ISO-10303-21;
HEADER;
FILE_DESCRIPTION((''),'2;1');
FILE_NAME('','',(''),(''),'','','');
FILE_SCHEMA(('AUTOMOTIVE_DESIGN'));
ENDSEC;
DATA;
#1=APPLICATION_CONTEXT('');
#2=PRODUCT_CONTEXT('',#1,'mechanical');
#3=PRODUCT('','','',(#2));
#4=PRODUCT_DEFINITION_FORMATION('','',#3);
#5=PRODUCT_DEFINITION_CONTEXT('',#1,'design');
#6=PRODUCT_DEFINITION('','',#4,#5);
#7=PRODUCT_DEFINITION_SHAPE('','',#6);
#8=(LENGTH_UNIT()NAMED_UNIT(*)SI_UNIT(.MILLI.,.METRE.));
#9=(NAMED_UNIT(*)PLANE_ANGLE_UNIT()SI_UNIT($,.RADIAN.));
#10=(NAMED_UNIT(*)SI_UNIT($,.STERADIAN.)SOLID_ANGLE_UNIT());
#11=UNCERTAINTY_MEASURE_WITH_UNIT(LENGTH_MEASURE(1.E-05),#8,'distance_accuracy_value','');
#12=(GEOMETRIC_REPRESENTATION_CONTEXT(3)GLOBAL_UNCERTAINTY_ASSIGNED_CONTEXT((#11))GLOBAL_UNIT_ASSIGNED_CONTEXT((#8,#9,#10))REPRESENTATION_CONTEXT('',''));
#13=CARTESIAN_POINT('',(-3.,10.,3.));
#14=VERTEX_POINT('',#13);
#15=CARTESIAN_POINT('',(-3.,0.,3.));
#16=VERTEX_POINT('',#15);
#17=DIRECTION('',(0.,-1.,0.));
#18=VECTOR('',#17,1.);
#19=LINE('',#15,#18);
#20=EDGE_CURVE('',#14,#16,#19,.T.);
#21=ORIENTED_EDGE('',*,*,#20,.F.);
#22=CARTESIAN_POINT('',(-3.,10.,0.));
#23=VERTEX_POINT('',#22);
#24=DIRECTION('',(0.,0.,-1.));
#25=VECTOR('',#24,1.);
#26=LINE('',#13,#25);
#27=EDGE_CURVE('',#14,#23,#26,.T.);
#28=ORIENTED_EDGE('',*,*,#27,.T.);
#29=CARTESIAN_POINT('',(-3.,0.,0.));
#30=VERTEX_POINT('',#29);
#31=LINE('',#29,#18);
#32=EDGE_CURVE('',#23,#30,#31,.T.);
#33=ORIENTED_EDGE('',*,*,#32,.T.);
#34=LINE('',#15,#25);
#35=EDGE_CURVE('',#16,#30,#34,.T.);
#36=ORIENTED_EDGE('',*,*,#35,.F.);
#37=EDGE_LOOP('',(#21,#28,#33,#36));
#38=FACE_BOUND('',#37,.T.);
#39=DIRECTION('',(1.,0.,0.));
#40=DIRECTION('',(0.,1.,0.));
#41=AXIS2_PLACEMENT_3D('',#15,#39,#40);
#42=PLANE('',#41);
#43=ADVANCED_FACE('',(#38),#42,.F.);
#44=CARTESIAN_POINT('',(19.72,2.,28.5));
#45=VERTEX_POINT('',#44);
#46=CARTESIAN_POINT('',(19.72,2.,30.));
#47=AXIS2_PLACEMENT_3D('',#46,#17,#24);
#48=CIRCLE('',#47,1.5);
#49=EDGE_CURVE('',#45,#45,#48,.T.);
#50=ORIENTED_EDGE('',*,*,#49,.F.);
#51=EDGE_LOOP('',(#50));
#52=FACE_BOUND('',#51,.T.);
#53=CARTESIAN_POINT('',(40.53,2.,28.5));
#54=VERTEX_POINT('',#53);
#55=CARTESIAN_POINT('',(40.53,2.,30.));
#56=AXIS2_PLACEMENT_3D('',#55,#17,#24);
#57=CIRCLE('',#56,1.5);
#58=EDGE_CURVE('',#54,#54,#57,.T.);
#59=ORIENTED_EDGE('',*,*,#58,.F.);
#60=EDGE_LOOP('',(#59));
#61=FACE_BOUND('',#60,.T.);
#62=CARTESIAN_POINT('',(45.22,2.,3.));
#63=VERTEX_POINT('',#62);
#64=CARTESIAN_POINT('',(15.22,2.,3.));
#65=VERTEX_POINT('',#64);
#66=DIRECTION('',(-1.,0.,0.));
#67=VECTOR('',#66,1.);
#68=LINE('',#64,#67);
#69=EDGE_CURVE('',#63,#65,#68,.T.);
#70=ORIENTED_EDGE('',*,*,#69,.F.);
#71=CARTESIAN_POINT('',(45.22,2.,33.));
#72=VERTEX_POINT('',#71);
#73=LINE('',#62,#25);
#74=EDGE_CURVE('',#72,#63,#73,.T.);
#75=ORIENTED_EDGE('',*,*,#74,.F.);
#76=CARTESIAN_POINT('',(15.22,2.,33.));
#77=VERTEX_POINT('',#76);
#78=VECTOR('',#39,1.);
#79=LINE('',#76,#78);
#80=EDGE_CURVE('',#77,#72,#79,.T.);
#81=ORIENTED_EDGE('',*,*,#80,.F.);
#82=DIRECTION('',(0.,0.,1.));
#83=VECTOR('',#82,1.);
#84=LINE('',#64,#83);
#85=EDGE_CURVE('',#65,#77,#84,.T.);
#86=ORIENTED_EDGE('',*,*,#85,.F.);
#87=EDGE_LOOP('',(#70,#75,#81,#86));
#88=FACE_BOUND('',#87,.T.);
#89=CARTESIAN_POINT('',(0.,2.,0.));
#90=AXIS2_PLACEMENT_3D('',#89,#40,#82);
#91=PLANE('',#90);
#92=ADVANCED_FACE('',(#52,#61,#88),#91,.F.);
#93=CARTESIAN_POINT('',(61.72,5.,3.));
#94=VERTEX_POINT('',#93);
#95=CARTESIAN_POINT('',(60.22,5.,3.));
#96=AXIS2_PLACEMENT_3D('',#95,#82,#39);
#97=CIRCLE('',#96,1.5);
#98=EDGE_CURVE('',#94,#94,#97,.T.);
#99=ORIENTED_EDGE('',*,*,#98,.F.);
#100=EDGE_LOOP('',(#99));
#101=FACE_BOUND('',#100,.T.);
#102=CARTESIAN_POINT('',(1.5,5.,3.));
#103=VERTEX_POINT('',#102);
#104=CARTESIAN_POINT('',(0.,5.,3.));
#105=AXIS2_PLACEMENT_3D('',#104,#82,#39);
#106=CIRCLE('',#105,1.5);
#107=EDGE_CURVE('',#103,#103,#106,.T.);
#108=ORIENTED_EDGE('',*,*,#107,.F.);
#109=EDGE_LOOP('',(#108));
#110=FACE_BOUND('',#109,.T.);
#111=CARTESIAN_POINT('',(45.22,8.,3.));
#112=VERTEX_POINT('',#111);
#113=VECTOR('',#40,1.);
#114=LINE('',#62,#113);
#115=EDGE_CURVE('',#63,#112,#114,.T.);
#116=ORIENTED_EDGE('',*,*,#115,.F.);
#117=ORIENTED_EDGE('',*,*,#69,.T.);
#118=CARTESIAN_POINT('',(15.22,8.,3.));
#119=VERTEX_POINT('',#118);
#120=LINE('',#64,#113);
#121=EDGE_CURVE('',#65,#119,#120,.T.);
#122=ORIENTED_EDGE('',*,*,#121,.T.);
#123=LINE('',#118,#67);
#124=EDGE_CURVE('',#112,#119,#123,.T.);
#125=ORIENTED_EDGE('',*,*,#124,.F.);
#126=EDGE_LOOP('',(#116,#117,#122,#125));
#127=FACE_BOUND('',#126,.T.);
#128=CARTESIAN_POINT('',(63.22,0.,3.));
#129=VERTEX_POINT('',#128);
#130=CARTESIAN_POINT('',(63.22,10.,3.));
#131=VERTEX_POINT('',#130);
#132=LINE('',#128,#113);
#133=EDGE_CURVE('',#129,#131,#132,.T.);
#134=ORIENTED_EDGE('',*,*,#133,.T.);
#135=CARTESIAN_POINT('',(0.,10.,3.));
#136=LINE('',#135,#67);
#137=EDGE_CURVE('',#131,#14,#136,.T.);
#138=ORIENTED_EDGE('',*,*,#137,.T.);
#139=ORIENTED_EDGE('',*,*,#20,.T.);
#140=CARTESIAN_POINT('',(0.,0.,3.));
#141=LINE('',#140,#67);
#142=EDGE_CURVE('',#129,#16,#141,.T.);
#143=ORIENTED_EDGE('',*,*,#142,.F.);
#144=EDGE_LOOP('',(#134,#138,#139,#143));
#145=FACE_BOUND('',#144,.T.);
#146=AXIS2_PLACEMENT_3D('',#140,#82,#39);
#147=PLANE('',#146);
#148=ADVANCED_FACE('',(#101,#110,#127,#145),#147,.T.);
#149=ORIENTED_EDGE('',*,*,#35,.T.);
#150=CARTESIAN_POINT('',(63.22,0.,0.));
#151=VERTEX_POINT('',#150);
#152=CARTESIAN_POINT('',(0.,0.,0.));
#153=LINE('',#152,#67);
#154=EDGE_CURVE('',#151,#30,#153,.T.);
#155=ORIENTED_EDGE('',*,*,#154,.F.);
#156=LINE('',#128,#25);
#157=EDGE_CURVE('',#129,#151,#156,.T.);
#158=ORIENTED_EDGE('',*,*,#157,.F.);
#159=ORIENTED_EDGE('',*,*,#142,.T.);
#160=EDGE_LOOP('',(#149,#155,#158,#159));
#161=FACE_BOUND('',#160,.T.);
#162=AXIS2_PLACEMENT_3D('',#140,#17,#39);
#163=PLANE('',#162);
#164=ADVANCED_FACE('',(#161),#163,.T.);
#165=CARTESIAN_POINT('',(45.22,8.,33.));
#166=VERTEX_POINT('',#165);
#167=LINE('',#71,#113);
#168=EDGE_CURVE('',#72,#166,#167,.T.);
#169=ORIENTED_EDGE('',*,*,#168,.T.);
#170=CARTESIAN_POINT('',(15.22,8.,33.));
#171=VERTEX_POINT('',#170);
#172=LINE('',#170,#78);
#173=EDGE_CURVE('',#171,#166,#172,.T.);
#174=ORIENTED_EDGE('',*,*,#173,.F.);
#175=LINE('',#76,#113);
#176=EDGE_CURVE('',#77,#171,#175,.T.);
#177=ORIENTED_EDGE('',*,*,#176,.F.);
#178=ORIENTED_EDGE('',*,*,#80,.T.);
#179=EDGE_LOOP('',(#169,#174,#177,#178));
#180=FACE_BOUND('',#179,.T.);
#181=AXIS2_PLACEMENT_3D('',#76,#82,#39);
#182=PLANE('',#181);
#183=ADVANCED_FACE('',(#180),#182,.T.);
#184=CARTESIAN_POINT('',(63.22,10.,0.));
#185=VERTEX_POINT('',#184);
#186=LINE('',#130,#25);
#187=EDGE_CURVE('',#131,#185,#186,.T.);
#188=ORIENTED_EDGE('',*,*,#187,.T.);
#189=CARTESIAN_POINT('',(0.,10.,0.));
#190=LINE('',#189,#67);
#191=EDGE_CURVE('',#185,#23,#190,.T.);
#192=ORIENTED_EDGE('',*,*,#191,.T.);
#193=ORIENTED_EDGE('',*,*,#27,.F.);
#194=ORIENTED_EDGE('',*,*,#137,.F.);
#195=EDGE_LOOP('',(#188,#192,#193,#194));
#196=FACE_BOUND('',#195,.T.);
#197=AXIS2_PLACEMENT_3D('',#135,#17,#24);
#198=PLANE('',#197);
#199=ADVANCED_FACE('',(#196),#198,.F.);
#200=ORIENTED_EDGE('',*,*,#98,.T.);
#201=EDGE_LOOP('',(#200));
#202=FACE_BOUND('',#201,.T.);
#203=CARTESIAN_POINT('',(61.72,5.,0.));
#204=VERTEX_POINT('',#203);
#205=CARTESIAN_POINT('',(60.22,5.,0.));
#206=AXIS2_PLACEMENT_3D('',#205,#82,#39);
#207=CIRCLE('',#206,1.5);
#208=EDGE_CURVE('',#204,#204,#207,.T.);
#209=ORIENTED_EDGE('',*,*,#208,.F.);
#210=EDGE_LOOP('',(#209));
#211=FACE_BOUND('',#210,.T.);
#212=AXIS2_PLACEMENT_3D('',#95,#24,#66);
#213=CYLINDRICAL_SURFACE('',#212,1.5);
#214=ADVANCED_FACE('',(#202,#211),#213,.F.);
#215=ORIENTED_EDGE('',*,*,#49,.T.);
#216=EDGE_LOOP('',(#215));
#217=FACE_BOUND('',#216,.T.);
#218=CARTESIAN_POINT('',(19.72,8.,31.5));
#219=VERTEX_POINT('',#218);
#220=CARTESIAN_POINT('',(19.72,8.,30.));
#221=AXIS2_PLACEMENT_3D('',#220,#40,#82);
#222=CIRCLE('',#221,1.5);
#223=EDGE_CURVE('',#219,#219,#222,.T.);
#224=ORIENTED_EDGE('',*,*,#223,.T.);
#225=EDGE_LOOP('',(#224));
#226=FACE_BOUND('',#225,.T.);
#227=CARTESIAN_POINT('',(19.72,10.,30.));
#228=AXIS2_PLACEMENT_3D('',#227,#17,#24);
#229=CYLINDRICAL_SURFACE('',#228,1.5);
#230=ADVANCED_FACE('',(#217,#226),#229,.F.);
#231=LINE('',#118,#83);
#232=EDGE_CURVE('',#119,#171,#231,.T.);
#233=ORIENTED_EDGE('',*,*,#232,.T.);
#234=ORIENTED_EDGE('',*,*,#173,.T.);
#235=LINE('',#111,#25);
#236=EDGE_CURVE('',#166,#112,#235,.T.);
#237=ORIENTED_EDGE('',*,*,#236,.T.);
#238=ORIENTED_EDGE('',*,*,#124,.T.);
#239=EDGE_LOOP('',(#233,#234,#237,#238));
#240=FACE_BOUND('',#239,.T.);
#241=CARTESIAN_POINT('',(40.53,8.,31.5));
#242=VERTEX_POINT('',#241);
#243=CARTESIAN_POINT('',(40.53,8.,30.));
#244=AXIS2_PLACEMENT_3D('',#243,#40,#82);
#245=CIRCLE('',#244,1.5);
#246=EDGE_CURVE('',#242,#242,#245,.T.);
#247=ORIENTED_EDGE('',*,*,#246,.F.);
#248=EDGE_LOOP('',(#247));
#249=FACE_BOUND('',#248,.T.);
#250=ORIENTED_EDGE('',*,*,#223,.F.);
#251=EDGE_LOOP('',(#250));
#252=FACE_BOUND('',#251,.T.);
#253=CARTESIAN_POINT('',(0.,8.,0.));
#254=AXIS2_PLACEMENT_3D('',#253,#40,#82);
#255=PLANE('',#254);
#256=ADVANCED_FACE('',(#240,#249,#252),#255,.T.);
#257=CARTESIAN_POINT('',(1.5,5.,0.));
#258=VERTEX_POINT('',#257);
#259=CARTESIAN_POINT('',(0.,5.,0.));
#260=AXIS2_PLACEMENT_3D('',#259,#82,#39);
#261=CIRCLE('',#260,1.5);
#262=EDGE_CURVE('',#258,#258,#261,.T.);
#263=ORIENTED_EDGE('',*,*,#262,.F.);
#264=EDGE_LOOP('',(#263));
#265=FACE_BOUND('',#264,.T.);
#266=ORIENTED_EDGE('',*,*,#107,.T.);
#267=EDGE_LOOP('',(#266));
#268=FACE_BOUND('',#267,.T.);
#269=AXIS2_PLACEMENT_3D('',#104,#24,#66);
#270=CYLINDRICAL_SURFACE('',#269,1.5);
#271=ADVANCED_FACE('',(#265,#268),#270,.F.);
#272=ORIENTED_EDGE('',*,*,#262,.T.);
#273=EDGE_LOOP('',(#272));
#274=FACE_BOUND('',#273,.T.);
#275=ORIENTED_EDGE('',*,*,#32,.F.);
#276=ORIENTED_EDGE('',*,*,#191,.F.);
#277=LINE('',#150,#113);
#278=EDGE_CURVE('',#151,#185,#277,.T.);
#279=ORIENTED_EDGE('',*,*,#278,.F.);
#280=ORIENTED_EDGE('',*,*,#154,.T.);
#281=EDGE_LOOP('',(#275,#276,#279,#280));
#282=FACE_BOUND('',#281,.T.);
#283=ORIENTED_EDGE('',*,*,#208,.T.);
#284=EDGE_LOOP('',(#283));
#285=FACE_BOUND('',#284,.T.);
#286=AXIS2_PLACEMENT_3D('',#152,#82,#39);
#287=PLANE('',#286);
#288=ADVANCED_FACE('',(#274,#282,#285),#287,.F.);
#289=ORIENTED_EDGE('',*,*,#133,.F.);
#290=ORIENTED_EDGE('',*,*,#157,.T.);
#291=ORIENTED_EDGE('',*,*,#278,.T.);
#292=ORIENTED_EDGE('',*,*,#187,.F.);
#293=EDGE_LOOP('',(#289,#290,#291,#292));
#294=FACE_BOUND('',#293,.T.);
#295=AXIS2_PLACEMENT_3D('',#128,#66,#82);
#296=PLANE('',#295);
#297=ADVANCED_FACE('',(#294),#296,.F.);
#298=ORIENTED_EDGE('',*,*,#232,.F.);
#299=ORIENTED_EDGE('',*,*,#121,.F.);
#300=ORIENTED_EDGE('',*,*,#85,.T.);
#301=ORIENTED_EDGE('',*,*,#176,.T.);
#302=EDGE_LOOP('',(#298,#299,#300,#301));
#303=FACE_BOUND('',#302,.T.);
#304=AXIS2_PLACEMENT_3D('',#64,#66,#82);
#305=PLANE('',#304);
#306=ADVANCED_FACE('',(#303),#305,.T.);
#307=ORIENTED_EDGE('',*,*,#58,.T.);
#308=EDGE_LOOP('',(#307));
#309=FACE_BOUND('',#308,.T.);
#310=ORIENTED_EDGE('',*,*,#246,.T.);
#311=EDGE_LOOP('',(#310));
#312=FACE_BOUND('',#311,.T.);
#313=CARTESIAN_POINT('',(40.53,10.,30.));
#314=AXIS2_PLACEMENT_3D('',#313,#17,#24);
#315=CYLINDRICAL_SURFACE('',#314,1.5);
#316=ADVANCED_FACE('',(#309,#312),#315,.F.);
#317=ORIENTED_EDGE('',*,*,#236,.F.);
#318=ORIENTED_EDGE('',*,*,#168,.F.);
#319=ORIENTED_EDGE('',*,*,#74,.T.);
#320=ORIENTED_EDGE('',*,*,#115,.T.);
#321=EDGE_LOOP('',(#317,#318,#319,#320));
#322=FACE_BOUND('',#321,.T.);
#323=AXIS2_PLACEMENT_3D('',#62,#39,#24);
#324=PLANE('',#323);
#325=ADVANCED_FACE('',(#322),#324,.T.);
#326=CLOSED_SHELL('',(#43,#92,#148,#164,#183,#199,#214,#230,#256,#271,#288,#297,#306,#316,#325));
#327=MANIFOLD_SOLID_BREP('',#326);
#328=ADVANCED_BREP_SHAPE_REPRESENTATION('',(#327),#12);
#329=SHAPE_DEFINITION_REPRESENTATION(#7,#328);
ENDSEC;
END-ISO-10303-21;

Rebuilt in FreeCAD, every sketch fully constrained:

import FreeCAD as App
import Part
import Sketcher


def add_polygon(sketch, points):
    """Adds a closed chain of lines whose ends are joined by coincident constraints."""
    first, n = sketch.GeometryCount, len(points)
    for a, b in zip(points, points[1:] + points[:1]):
        sketch.addGeometry(Part.LineSegment(App.Vector(*a, 0), App.Vector(*b, 0)), False)
    for i in range(n):
        sketch.addConstraint(Sketcher.Constraint("Coincident", first + i, 2, first + (i + 1) % n, 1))

doc = App.newDocument("Part")
body = doc.addObject("PartDesign::Body", "Body")

# Sketch on XY plane
sketch1 = body.newObject("Sketcher::SketchObject", "Sketch")
sketch1.AttachmentSupport = (doc.getObject("XY_Plane"), [""])
sketch1.MapMode = "FlatFace"
add_polygon(sketch1, [(-3, 10), (-3, 0), (63.2, 0), (63.2, 10)])  # lines 0-3
sketch1.addGeometry(Part.Circle(App.Vector(0, 5, 0), App.Vector(0, 0, 1), 1.5), False)  # 4
sketch1.addGeometry(Part.Circle(App.Vector(60.2, 5, 0), App.Vector(0, 0, 1), 1.5), False)  # 5
sketch1.addConstraint(Sketcher.Constraint("Vertical", 0))
sketch1.addConstraint(Sketcher.Constraint("Horizontal", 1))
sketch1.addConstraint(Sketcher.Constraint("Vertical", 2))
sketch1.addConstraint(Sketcher.Constraint("Horizontal", 3))
sketch1.addConstraint(Sketcher.Constraint("Equal", 4, 5))
sketch1.addConstraint(Sketcher.Constraint("PointOnObject", 4, 3, -2))
sketch1.addConstraint(Sketcher.Constraint("PointOnObject", 0, 2, -1))
sketch1.addConstraint(Sketcher.Constraint("Horizontal", 4, 3, 5, 3))
sketch1.addConstraint(Sketcher.Constraint("Diameter", 4, 3.0))
sketch1.addConstraint(Sketcher.Constraint("DistanceY", 0, 2, 0, 1, 10.0))
sketch1.addConstraint(Sketcher.Constraint("DistanceY", -1, 1, 4, 3, 5.0))
sketch1.addConstraint(Sketcher.Constraint("DistanceX", 0, 2, -1, 1, 3.0))
sketch1.addConstraint(Sketcher.Constraint("DistanceX", 5, 3, 1, 2, 3.0))
sketch1.addConstraint(Sketcher.Constraint("DistanceX", 1, 1, 1, 2, 66.22))
pad1 = body.newObject("PartDesign::Pad", "Pad")
pad1.Profile = sketch1
pad1.Length = 3

# Sketch on XZ plane
sketch2 = body.newObject("Sketcher::SketchObject", "Sketch001")
sketch2.AttachmentSupport = (doc.getObject("XZ_Plane"), [""])
sketch2.MapMode = "FlatFace"
sketch2.AttachmentOffset = App.Placement(App.Vector(0, 0, -5), App.Rotation())
add_polygon(sketch2, [(15, 3), (15, 33), (45, 33), (45, 3)])  # lines 0-3
sketch2.addConstraint(Sketcher.Constraint("Vertical", 0))
sketch2.addConstraint(Sketcher.Constraint("Horizontal", 1))
sketch2.addConstraint(Sketcher.Constraint("Vertical", 2))
sketch2.addConstraint(Sketcher.Constraint("Horizontal", 3))
sketch2.addConstraint(Sketcher.Constraint("Equal", 3, 0))
sketch2.addConstraint(Sketcher.Constraint("DistanceX", 1, 1, 1, 2, 30.0))
sketch2.addConstraint(Sketcher.Constraint("DistanceY", -1, 1, 0, 2, 33.0))
sketch2.addConstraint(Sketcher.Constraint("DistanceX", -1, 1, 0, 2, 15.22))
pad2 = body.newObject("PartDesign::Pad", "Pad001")
pad2.Profile = sketch2
pad2.Type = "TwoLengths"
pad2.Length = 3
pad2.Length2 = 3
pad2.Reversed = True

# Sketch on XZ plane
sketch3 = body.newObject("Sketcher::SketchObject", "Sketch002")
sketch3.AttachmentSupport = (doc.getObject("XZ_Plane"), [""])
sketch3.MapMode = "FlatFace"
sketch3.AttachmentOffset = App.Placement(App.Vector(0, 0, -2), App.Rotation())
sketch3.addGeometry(Part.Circle(App.Vector(19.7, 30, 0), App.Vector(0, 0, 1), 1.5), False)
sketch3.addGeometry(Part.Circle(App.Vector(40.5, 30, 0), App.Vector(0, 0, 1), 1.5), False)
sketch3.addConstraint(Sketcher.Constraint("Equal", 0, 1))
sketch3.addConstraint(Sketcher.Constraint("Horizontal", 0, 3, 1, 3))
sketch3.addConstraint(Sketcher.Constraint("Diameter", 0, 3.0))
sketch3.addConstraint(Sketcher.Constraint("DistanceY", -1, 1, 0, 3, 30.0))
sketch3.addConstraint(Sketcher.Constraint("DistanceX", -1, 1, 0, 3, 19.72))
sketch3.addConstraint(Sketcher.Constraint("DistanceX", -1, 1, 1, 3, 40.53))
pocket1 = body.newObject("PartDesign::Pocket", "Pocket")
pocket1.Profile = sketch3
pocket1.Type = "ThroughAll"

doc.recompute()
